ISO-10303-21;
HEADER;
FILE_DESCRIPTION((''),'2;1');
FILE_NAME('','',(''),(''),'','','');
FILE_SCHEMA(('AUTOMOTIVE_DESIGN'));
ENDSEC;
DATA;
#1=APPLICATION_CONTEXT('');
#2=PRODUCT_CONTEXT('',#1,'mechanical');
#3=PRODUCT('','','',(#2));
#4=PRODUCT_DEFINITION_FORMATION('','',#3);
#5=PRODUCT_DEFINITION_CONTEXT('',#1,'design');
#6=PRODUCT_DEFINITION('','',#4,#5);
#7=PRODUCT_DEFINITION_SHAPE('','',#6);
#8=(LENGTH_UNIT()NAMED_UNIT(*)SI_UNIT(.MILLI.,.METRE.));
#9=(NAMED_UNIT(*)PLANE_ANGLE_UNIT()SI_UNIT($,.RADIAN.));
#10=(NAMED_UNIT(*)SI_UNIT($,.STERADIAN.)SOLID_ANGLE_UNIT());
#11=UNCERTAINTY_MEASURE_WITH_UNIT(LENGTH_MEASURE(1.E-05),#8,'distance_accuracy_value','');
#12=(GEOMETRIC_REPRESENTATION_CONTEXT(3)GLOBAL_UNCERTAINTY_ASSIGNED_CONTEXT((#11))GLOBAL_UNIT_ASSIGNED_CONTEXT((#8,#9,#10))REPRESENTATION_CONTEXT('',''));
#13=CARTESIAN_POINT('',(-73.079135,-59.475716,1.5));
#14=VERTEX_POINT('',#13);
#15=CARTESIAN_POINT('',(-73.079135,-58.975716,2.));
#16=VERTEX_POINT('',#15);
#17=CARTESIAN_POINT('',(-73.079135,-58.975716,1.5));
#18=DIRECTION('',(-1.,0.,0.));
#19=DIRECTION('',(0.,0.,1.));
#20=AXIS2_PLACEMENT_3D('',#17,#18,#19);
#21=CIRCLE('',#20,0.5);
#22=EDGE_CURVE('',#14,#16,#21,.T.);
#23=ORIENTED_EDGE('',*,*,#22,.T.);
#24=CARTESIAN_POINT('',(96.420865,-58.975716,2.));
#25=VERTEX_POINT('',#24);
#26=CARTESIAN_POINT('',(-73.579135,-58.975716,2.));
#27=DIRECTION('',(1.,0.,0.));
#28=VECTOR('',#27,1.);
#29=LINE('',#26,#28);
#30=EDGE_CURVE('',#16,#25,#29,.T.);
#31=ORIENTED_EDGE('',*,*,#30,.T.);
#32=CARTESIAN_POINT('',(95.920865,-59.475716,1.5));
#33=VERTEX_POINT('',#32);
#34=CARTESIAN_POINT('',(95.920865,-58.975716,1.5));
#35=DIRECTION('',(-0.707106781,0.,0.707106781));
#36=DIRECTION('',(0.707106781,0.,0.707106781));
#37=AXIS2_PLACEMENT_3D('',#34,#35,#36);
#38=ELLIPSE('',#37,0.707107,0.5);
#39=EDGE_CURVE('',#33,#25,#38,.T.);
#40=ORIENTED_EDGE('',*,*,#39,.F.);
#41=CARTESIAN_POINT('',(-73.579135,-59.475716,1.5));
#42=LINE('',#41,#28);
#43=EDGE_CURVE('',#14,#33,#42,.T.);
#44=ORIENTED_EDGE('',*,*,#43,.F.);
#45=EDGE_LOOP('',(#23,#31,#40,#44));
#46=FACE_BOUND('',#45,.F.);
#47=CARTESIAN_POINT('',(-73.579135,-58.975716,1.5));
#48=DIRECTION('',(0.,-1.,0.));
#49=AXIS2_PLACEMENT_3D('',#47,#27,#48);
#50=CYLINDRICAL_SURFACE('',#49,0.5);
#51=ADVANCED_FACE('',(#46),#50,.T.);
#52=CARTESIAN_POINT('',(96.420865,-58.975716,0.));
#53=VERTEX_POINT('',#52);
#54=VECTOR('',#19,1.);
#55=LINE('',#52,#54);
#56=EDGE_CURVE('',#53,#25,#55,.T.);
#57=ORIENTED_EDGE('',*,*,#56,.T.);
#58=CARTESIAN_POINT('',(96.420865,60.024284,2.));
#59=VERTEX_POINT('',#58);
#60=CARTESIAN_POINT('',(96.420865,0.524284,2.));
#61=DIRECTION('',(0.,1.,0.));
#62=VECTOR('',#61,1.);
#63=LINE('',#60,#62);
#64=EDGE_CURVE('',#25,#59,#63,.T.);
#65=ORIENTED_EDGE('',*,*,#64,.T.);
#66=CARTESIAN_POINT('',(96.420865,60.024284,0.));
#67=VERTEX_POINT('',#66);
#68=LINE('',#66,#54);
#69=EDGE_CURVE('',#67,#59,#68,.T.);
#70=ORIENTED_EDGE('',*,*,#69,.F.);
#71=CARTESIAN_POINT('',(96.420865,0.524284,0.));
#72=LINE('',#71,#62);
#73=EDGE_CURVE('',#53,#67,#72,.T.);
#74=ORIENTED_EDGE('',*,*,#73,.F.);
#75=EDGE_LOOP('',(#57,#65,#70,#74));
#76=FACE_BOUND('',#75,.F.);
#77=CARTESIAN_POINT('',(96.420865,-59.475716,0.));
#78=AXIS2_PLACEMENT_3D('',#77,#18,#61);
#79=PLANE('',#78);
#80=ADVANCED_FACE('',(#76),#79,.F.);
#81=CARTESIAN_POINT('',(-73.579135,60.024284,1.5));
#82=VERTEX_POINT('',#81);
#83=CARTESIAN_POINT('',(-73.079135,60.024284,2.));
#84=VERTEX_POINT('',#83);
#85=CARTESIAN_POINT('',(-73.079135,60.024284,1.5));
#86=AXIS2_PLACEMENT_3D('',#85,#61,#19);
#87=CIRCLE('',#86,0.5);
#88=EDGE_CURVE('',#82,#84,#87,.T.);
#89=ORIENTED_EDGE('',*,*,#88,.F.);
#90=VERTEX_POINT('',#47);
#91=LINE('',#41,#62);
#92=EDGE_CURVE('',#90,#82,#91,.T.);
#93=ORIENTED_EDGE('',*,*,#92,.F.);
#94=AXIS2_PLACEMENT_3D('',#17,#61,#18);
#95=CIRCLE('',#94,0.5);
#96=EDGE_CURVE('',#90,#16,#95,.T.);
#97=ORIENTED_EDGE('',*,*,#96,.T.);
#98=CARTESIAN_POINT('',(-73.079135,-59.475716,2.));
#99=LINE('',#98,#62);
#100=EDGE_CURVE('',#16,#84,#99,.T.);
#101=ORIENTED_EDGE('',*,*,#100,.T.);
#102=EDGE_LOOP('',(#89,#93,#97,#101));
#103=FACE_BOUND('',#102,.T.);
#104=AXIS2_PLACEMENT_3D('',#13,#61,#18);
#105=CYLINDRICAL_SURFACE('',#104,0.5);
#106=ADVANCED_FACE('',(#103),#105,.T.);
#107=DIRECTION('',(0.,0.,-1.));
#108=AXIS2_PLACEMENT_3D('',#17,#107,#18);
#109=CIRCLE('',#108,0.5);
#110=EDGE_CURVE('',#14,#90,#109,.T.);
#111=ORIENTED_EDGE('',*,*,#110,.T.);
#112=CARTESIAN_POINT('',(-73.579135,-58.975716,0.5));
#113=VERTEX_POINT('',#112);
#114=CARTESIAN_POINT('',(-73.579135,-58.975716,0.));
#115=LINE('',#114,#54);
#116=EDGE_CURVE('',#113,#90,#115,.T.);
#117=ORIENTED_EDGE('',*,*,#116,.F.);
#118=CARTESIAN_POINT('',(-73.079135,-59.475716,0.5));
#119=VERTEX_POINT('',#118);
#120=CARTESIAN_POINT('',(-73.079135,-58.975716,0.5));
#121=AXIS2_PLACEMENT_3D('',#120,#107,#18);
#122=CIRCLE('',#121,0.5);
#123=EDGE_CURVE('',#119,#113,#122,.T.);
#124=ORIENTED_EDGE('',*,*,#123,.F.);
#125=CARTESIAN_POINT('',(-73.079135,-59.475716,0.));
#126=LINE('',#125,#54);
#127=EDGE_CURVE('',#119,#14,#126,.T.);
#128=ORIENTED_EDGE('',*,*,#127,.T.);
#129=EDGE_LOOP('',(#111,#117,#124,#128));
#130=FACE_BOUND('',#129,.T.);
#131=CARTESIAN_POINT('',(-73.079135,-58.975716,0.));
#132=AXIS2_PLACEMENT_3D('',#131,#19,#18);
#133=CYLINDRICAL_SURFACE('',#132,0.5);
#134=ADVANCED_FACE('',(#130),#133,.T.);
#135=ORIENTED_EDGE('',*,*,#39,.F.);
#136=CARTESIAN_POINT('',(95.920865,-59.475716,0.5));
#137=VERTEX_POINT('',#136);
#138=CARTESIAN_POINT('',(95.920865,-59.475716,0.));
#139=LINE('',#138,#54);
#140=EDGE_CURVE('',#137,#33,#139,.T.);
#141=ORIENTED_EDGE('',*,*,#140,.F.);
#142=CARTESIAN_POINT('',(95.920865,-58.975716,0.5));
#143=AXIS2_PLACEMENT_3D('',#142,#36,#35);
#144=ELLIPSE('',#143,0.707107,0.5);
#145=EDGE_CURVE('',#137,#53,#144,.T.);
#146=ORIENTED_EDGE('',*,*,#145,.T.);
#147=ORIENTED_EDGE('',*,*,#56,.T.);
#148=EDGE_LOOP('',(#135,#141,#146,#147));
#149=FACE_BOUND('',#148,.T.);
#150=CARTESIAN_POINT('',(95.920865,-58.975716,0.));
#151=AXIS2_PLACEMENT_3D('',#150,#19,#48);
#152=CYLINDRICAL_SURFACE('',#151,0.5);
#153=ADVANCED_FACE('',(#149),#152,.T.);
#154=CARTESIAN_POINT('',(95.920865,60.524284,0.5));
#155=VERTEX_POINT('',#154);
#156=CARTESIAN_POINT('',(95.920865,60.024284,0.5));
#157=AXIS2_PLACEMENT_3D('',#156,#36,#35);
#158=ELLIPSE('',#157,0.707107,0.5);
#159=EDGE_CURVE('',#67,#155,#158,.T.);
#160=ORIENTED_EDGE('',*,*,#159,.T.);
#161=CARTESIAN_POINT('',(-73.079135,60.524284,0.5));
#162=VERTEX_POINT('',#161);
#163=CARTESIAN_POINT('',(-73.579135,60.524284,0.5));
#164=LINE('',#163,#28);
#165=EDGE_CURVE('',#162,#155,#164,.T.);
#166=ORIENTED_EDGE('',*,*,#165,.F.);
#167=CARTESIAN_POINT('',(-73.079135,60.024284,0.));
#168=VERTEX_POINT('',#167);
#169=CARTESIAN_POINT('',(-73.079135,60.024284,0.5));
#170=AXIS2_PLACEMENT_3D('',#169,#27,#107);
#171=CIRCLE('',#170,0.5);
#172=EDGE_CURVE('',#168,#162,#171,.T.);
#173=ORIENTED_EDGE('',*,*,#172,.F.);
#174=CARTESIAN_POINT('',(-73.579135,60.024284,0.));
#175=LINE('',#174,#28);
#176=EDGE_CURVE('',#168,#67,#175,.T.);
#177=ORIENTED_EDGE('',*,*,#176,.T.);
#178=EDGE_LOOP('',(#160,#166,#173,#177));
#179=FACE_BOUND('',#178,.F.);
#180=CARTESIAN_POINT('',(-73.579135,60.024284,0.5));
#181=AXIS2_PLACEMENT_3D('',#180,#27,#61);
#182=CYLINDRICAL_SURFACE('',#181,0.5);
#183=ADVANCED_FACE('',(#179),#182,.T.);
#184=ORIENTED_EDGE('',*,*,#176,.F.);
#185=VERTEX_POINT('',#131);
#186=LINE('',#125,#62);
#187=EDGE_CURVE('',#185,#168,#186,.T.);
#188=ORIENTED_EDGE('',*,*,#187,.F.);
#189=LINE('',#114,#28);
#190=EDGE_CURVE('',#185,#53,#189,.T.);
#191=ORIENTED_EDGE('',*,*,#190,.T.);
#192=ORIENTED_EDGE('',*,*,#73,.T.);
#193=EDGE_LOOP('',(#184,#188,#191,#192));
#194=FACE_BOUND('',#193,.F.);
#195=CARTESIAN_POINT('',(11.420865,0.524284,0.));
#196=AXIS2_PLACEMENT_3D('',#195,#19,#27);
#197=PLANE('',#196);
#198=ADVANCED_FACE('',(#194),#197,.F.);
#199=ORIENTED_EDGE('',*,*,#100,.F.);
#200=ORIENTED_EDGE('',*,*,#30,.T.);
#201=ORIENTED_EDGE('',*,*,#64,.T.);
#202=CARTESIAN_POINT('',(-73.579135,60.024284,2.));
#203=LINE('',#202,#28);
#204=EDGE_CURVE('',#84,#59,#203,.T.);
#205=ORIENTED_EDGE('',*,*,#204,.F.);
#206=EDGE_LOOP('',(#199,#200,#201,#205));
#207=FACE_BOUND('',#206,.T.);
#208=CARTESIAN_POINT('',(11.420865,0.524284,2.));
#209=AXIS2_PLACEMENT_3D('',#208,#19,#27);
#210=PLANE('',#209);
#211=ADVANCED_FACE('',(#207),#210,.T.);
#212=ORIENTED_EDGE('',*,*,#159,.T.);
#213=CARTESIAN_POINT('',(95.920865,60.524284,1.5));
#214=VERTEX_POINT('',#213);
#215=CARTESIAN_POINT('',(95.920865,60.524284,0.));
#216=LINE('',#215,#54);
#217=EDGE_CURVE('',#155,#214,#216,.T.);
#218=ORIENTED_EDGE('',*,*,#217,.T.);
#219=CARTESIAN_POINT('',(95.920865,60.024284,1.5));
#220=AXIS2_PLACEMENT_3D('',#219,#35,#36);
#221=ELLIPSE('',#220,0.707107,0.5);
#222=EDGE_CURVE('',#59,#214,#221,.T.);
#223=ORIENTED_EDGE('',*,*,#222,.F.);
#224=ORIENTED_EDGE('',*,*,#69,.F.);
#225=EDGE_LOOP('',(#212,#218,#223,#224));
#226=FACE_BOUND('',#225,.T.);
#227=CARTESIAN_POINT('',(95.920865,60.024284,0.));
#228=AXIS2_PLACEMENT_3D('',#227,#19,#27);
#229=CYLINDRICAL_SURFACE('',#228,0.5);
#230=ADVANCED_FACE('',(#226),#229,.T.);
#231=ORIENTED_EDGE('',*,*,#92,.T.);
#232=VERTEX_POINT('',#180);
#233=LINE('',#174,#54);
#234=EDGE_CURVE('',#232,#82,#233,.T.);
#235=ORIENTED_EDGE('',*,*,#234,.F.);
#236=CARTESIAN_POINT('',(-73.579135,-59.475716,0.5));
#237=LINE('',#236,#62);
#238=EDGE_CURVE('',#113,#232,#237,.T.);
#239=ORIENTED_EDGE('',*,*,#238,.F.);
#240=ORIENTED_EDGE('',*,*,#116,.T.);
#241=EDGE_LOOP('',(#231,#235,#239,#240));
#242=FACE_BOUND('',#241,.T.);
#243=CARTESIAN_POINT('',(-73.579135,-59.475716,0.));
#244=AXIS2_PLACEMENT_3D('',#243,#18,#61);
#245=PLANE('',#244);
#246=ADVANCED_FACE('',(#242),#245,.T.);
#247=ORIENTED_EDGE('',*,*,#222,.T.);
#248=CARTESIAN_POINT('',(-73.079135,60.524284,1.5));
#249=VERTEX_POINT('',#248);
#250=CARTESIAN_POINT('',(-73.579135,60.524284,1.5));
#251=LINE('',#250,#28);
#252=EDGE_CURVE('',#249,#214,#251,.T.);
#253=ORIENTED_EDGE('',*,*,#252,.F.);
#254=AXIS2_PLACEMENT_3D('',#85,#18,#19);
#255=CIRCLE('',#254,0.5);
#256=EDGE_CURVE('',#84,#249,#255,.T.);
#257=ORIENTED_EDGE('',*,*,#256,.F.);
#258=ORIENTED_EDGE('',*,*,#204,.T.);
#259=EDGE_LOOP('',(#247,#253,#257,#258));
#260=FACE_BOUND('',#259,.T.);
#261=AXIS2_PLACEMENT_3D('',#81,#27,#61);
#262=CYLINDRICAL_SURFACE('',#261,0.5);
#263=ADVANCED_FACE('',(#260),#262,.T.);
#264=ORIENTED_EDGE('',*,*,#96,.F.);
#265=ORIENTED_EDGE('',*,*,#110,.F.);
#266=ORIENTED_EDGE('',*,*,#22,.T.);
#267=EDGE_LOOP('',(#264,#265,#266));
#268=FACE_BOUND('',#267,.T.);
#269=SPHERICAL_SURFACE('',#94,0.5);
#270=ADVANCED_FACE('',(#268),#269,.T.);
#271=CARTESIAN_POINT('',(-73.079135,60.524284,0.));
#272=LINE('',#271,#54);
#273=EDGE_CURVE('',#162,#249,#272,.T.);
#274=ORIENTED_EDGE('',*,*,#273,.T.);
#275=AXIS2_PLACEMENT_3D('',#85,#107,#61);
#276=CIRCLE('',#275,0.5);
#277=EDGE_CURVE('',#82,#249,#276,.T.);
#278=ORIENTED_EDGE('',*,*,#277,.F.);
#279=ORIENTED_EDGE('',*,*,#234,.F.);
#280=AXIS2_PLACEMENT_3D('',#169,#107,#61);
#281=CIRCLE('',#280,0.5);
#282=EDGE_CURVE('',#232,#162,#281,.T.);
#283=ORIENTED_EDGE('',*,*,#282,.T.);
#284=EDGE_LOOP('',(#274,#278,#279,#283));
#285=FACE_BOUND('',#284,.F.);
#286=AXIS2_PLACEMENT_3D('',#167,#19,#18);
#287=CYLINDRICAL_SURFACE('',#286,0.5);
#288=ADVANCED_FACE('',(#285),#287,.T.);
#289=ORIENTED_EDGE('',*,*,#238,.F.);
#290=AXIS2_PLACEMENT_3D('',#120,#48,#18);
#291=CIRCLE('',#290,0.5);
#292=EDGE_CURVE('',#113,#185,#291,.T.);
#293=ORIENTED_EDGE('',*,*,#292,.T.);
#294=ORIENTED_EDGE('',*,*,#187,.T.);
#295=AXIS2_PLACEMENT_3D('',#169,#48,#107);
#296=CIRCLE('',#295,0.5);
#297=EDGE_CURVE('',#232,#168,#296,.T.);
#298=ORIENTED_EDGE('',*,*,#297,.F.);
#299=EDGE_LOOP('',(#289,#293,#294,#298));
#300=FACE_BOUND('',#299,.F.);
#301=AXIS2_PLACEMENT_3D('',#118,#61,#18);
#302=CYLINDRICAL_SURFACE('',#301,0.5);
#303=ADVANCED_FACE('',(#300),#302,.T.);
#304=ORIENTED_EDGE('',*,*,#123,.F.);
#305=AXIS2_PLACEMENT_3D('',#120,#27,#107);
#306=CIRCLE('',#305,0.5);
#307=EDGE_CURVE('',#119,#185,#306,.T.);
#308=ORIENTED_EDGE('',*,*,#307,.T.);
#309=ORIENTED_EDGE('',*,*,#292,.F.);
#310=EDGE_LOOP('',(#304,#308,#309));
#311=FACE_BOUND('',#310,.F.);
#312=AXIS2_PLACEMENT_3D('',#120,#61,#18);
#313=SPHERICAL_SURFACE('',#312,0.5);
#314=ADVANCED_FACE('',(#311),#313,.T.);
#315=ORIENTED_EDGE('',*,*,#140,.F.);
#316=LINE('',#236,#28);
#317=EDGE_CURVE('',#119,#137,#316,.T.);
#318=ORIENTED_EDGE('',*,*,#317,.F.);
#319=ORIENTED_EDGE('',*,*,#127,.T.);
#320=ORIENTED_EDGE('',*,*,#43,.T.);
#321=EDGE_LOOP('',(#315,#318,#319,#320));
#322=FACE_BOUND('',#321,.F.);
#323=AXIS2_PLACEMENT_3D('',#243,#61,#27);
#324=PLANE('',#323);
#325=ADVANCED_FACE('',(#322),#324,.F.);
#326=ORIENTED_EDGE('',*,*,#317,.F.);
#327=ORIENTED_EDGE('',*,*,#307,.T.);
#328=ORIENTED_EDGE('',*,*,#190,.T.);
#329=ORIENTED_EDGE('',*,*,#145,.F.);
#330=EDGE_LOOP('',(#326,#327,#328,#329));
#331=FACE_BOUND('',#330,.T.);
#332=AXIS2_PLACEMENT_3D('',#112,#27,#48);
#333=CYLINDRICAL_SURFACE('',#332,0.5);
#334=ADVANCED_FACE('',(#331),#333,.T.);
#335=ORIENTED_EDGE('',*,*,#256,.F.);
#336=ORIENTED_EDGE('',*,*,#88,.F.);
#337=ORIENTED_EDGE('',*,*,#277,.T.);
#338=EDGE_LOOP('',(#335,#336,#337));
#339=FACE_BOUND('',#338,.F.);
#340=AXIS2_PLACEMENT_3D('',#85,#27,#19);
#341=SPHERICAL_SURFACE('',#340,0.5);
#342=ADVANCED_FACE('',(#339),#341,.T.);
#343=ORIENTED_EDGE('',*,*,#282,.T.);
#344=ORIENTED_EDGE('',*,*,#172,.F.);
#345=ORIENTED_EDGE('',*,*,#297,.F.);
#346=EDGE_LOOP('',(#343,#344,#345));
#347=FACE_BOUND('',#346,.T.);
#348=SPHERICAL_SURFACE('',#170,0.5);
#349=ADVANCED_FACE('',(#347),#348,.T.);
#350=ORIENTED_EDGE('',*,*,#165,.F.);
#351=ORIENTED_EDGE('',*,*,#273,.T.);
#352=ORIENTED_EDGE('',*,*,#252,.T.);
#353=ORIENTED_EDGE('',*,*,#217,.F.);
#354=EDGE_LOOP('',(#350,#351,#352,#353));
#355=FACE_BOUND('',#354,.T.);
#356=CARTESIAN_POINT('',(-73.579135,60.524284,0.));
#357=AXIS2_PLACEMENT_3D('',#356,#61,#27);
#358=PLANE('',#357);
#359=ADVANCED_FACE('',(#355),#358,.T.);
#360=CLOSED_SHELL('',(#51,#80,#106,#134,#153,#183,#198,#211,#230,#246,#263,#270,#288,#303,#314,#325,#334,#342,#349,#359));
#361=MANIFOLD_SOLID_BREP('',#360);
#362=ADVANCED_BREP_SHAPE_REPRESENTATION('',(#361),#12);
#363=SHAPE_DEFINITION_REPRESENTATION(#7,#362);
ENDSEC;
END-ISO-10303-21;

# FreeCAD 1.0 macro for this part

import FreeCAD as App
import Part
import Sketcher


def edges_at(feature, points):
    """Names of the edges that pass closest to the given points."""
    edges = feature.Shape.Edges
    near = lambda p: min(range(len(edges)), key=lambda i: edges[i].distToShape(Part.Vertex(*p))[0])
    return sorted({f"Edge{near(p) + 1}" for p in points})

doc = App.newDocument("Part")
body = doc.addObject("PartDesign::Body", "Body")

# Sketch on XY plane
sketch1 = doc.addObject("Sketcher::SketchObject", "Sketch")
body.addObject(sketch1)
sketch1.AttachmentSupport = (doc.XY_Plane, [""])
sketch1.MapMode = "FlatFace"
sketch1.addGeometry(Part.LineSegment(App.Vector(-74, 61, 0), App.Vector(-74, -59, 0)), False)
sketch1.addGeometry(Part.LineSegment(App.Vector(-74, -59, 0), App.Vector(96, -59, 0)), False)
sketch1.addGeometry(Part.LineSegment(App.Vector(96, -59, 0), App.Vector(96, 61, 0)), False)
sketch1.addGeometry(Part.LineSegment(App.Vector(96, 61, 0), App.Vector(-74, 61, 0)), False)
sketch1.addConstraint(Sketcher.Constraint("Coincident", 0, 2, 1, 1))
sketch1.addConstraint(Sketcher.Constraint("Coincident", 1, 2, 2, 1))
sketch1.addConstraint(Sketcher.Constraint("Coincident", 2, 2, 3, 1))
sketch1.addConstraint(Sketcher.Constraint("Coincident", 3, 2, 0, 1))
sketch1.addConstraint(Sketcher.Constraint("Vertical", 0))
sketch1.addConstraint(Sketcher.Constraint("Horizontal", 1))
sketch1.addConstraint(Sketcher.Constraint("Vertical", 2))
sketch1.addConstraint(Sketcher.Constraint("Horizontal", 3))
sketch1.addConstraint(Sketcher.Constraint("DistanceX", 1, 1, 1, 2, 170.0))
sketch1.addConstraint(Sketcher.Constraint("DistanceY", 0, 2, 0, 1, 120.0))
sketch1.addConstraint(Sketcher.Constraint("DistanceX", 0, 2, -1, 1, 73.579135))
sketch1.addConstraint(Sketcher.Constraint("DistanceY", 0, 2, -1, 1, 59.475716))
pad1 = doc.addObject("PartDesign::Pad", "Pad")
body.addObject(pad1)
pad1.Profile = sketch1
pad1.Length = 2
doc.recompute()

fillet = doc.addObject("PartDesign::Fillet", "Fillet")
body.addObject(fillet)
fillet.Base = (pad1, edges_at(pad1, [
    (96.421, -59.476, 1),
    (96.421, 60.524, 1),
    (11.421, 60.524, 0),
    (11.421, 60.524, 2),
    (-73.579, 0.524, 2),
    (-73.579, 0.524, 0),
    (-73.579, -59.476, 1),
    (-73.579, 60.524, 1),
    (11.421, -59.476, 0),
    (11.421, -59.476, 2),
]))
fillet.Radius = 0.5

doc.recompute()
